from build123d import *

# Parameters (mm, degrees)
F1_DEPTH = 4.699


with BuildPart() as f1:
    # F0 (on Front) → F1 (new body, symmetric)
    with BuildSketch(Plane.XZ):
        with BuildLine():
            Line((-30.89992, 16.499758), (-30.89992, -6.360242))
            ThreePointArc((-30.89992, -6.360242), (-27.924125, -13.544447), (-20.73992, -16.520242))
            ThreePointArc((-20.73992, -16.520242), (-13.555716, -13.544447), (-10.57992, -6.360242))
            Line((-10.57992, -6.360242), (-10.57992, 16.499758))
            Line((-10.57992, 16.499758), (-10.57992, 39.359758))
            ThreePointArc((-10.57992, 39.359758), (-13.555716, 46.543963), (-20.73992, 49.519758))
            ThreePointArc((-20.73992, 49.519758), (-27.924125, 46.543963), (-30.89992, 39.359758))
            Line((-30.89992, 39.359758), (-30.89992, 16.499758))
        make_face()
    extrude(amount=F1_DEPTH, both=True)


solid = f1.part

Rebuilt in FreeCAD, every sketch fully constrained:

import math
import FreeCAD as App
import Part
import Sketcher

V = App.Vector
Q = App.Units.Quantity

doc = App.newDocument("Part")
body = doc.addObject("PartDesign::Body", "Body")

# Sketch on XZ plane
sketch1 = doc.addObject("Sketcher::SketchObject", "Sketch")
body.addObject(sketch1)
sketch1.AttachmentSupport = (doc.XZ_Plane, [""])
sketch1.MapMode = "FlatFace"
sketch1.addGeometry([
    Part.ArcOfCircle(Part.Circle(V(-21, -6, 0), V(0, 0, 1), 10), math.radians(180), math.radians(270)),  # 0
    Part.ArcOfCircle(Part.Circle(V(-21, -6, 0), V(0, 0, 1), 10), math.radians(-90), math.radians(0)),  # 1
    Part.LineSegment(V(-11, -6, 0), V(-11, 39, 0)),  # 2
    Part.ArcOfCircle(Part.Circle(V(-21, 39, 0), V(0, 0, 1), 10), math.radians(0), math.radians(90)),  # 3
    Part.ArcOfCircle(Part.Circle(V(-21, 39, 0), V(0, 0, 1), 10), math.radians(90), math.radians(180)),  # 4
    Part.LineSegment(V(-31, 39, 0), V(-31, -6, 0)),  # 5
], False)
sketch1.addConstraint([
    Sketcher.Constraint("Tangent", 0, 2, 1, 1),
    Sketcher.Constraint("Tangent", 1, 2, 2, 1),
    Sketcher.Constraint("Tangent", 2, 2, 3, 1),
    Sketcher.Constraint("Tangent", 3, 2, 4, 1),
    Sketcher.Constraint("Tangent", 4, 2, 5, 1),
    Sketcher.Constraint("Tangent", 5, 2, 0, 1),
    Sketcher.Constraint("Vertical", 2),
    Sketcher.Constraint("Vertical", 5),
    Sketcher.Constraint("Equal", 0, 1),
    Sketcher.Constraint("Equal", 1, 3),
    Sketcher.Constraint("Vertical", 4, 3, 0, 2),
    Sketcher.Constraint("Vertical", 0, 2, 3, 2),
    Sketcher.Constraint("Radius", 0, Q("0.4 in")),
    Sketcher.Constraint("DistanceY", 2, 1, 2, 2, Q("1.8 in")),
    Sketcher.Constraint("DistanceX", 0, 3, -1, 1, 20.73992),
    Sketcher.Constraint("DistanceY", 1, 3, -1, 1, 6.360241),
])
pad1 = doc.addObject("PartDesign::Pad", "Pad")
body.addObject(pad1)
pad1.Profile = sketch1
pad1.Length = Q("0.37 in")
pad1.Midplane = True

doc.recompute()
